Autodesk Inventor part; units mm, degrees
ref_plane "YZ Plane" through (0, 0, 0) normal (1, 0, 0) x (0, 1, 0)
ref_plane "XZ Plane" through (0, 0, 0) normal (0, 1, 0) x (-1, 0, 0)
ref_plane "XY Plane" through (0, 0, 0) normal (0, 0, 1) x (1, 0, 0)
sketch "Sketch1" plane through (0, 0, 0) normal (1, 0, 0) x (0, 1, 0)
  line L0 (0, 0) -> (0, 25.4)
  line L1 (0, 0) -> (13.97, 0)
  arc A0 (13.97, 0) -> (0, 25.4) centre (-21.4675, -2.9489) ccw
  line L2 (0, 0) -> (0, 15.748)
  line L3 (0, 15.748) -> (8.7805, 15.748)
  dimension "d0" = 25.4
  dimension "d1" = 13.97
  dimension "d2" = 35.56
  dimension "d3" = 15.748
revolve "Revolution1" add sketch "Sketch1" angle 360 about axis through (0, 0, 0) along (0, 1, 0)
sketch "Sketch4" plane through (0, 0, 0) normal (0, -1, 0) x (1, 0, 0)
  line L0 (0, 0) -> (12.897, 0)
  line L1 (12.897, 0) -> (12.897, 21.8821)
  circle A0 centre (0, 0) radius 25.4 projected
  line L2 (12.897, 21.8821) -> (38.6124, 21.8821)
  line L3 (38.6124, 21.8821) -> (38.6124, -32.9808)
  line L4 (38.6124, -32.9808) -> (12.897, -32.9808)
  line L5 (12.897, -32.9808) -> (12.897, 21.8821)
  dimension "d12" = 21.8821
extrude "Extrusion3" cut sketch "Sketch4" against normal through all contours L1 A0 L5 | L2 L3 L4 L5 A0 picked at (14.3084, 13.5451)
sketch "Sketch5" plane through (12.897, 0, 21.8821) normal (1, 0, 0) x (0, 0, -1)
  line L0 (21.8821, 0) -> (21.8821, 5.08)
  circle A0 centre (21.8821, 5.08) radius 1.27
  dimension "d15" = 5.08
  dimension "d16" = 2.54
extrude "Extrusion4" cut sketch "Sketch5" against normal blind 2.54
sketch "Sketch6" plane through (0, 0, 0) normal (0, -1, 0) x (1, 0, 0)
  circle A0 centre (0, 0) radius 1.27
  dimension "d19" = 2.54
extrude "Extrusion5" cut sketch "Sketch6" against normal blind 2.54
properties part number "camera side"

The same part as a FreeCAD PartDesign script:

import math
import FreeCAD as App
import Part
import Sketcher
Q = App.Units.Quantity

doc = App.newDocument("Part")
params = doc.addObject("Spreadsheet::Sheet", "Params")
for row, (alias, value) in enumerate([
    ("sketch1_radius", "1.4 in"),
    ("sketch1_height", "1 in"),
    ("sketch1_width", "0.55 in"),
    ("revolution_angle", "360 deg"),
    ("sketch3_diameter", "0.1 in"),
    ("pocket2_length", "0.1 in"),
    ("sketch4_diameter", "0.1 in"),
    ("pocket3_length", "0.1 in"),
], start=1):
    params.set(f"A{row}", alias)
    params.set(f"B{row}", "=" + value)
    params.setAlias(f"B{row}", alias)

body = doc.addObject("PartDesign::Body", "Body")

# Sketch on YZ plane
sketch1 = body.newObject("Sketcher::SketchObject", "Sketch")
sketch1.AttachmentSupport = (doc.getObject("YZ_Plane"), [""])
sketch1.MapMode = "FlatFace"
sketch1.addGeometry([
    Part.LineSegment(App.Vector(0, 0, 0), App.Vector(14, 0, 0)),
    Part.ArcOfCircle(Part.Circle(App.Vector(-21, -3, 0), App.Vector(0, 0, 1), 36), math.radians(5), math.radians(53)),
    Part.LineSegment(App.Vector(0, 25, 0), App.Vector(0, 0, 0)),
], False)
sketch1.addConstraint([
    Sketcher.Constraint("Coincident", 0, 2, 1, 1),
    Sketcher.Constraint("Coincident", 1, 2, 2, 1),
    Sketcher.Constraint("Coincident", 2, 2, 0, 1),
    Sketcher.Constraint("Horizontal", 0),
    Sketcher.Constraint("Vertical", 2),
    Sketcher.Constraint("Coincident", 2, 2, -1, 1),
    Sketcher.Constraint("Radius", 1, Q("1.4 in")),
    Sketcher.Constraint("DistanceY", 2, 2, 2, 1, Q("1 in")),
    Sketcher.Constraint("DistanceX", 0, 1, 0, 2, Q("0.55 in")),
])
sketch1.setExpression("Constraints[6]", "Params.sketch1_radius")
sketch1.setExpression("Constraints[7]", "Params.sketch1_height")
sketch1.setExpression("Constraints[8]", "Params.sketch1_width")
revolution = body.newObject("PartDesign::Revolution", "Revolution")
revolution.Profile = sketch1
revolution.ReferenceAxis = (sketch1, ["H_Axis"])
revolution.setExpression("Angle", "Params.revolution_angle")

# Sketch on XZ plane
sketch2 = body.newObject("Sketcher::SketchObject", "Sketch001")
sketch2.AttachmentSupport = (doc.getObject("XZ_Plane"), [""])
sketch2.MapMode = "FlatFace"
sketch2.addGeometry([
    Part.LineSegment(App.Vector(13, 22, 0), App.Vector(13, -33, 0)),
    Part.LineSegment(App.Vector(13, -33, 0), App.Vector(39, -33, 0)),
    Part.LineSegment(App.Vector(39, -33, 0), App.Vector(39, 22, 0)),
    Part.LineSegment(App.Vector(39, 22, 0), App.Vector(13, 22, 0)),
], False)
sketch2.addConstraint([
    Sketcher.Constraint("Coincident", 0, 2, 1, 1),
    Sketcher.Constraint("Coincident", 1, 2, 2, 1),
    Sketcher.Constraint("Coincident", 2, 2, 3, 1),
    Sketcher.Constraint("Coincident", 3, 2, 0, 1),
    Sketcher.Constraint("Vertical", 0),
    Sketcher.Constraint("Horizontal", 1),
    Sketcher.Constraint("Vertical", 2),
    Sketcher.Constraint("Horizontal", 3),
    Sketcher.Constraint("DistanceY", -1, 1, 2, 2, Q("0.8615 in")),
    Sketcher.Constraint("DistanceX", 1, 1, 1, 2, 25.7154),
    Sketcher.Constraint("DistanceY", 0, 2, 0, 1, 54.863),
    Sketcher.Constraint("DistanceX", -1, 1, 0, 2, 12.897),
])
pocket1 = body.newObject("PartDesign::Pocket", "Pocket")
pocket1.Profile = sketch2
pocket1.Type = "ThroughAll"

# Sketch on YZ plane
sketch3 = body.newObject("Sketcher::SketchObject", "Sketch002")
sketch3.AttachmentSupport = (doc.getObject("YZ_Plane"), [""])
sketch3.MapMode = "FlatFace"
sketch3.AttachmentOffset = App.Placement(App.Vector(0, 0, 12.897), App.Rotation())
sketch3.addGeometry(Part.Circle(App.Vector(5.1, 0, 0), App.Vector(0, 0, 1), 1.3), False)
sketch3.addConstraint([
    Sketcher.Constraint("PointOnObject", 0, 3, -1),
    Sketcher.Constraint("Diameter", 0, Q("0.1 in")),
    Sketcher.Constraint("DistanceX", -1, 1, 0, 3, Q("0.2 in")),
])
sketch3.setExpression("Constraints[1]", "Params.sketch3_diameter")
pocket2 = body.newObject("PartDesign::Pocket", "Pocket001")
pocket2.Profile = sketch3
pocket2.setExpression("Length", "Params.pocket2_length")

# Sketch on XZ plane
sketch4 = body.newObject("Sketcher::SketchObject", "Sketch003")
sketch4.AttachmentSupport = (doc.getObject("XZ_Plane"), [""])
sketch4.MapMode = "FlatFace"
sketch4.addGeometry(Part.Circle(App.Vector(0, 0, 0), App.Vector(0, 0, 1), 1.3), False)
sketch4.addConstraint([
    Sketcher.Constraint("Coincident", 0, 3, -1, 1),
    Sketcher.Constraint("Diameter", 0, Q("0.1 in")),
])
sketch4.setExpression("Constraints[1]", "Params.sketch4_diameter")
pocket3 = body.newObject("PartDesign::Pocket", "Pocket002")
pocket3.Profile = sketch4
pocket3.setExpression("Length", "Params.pocket3_length")

doc.recompute()
